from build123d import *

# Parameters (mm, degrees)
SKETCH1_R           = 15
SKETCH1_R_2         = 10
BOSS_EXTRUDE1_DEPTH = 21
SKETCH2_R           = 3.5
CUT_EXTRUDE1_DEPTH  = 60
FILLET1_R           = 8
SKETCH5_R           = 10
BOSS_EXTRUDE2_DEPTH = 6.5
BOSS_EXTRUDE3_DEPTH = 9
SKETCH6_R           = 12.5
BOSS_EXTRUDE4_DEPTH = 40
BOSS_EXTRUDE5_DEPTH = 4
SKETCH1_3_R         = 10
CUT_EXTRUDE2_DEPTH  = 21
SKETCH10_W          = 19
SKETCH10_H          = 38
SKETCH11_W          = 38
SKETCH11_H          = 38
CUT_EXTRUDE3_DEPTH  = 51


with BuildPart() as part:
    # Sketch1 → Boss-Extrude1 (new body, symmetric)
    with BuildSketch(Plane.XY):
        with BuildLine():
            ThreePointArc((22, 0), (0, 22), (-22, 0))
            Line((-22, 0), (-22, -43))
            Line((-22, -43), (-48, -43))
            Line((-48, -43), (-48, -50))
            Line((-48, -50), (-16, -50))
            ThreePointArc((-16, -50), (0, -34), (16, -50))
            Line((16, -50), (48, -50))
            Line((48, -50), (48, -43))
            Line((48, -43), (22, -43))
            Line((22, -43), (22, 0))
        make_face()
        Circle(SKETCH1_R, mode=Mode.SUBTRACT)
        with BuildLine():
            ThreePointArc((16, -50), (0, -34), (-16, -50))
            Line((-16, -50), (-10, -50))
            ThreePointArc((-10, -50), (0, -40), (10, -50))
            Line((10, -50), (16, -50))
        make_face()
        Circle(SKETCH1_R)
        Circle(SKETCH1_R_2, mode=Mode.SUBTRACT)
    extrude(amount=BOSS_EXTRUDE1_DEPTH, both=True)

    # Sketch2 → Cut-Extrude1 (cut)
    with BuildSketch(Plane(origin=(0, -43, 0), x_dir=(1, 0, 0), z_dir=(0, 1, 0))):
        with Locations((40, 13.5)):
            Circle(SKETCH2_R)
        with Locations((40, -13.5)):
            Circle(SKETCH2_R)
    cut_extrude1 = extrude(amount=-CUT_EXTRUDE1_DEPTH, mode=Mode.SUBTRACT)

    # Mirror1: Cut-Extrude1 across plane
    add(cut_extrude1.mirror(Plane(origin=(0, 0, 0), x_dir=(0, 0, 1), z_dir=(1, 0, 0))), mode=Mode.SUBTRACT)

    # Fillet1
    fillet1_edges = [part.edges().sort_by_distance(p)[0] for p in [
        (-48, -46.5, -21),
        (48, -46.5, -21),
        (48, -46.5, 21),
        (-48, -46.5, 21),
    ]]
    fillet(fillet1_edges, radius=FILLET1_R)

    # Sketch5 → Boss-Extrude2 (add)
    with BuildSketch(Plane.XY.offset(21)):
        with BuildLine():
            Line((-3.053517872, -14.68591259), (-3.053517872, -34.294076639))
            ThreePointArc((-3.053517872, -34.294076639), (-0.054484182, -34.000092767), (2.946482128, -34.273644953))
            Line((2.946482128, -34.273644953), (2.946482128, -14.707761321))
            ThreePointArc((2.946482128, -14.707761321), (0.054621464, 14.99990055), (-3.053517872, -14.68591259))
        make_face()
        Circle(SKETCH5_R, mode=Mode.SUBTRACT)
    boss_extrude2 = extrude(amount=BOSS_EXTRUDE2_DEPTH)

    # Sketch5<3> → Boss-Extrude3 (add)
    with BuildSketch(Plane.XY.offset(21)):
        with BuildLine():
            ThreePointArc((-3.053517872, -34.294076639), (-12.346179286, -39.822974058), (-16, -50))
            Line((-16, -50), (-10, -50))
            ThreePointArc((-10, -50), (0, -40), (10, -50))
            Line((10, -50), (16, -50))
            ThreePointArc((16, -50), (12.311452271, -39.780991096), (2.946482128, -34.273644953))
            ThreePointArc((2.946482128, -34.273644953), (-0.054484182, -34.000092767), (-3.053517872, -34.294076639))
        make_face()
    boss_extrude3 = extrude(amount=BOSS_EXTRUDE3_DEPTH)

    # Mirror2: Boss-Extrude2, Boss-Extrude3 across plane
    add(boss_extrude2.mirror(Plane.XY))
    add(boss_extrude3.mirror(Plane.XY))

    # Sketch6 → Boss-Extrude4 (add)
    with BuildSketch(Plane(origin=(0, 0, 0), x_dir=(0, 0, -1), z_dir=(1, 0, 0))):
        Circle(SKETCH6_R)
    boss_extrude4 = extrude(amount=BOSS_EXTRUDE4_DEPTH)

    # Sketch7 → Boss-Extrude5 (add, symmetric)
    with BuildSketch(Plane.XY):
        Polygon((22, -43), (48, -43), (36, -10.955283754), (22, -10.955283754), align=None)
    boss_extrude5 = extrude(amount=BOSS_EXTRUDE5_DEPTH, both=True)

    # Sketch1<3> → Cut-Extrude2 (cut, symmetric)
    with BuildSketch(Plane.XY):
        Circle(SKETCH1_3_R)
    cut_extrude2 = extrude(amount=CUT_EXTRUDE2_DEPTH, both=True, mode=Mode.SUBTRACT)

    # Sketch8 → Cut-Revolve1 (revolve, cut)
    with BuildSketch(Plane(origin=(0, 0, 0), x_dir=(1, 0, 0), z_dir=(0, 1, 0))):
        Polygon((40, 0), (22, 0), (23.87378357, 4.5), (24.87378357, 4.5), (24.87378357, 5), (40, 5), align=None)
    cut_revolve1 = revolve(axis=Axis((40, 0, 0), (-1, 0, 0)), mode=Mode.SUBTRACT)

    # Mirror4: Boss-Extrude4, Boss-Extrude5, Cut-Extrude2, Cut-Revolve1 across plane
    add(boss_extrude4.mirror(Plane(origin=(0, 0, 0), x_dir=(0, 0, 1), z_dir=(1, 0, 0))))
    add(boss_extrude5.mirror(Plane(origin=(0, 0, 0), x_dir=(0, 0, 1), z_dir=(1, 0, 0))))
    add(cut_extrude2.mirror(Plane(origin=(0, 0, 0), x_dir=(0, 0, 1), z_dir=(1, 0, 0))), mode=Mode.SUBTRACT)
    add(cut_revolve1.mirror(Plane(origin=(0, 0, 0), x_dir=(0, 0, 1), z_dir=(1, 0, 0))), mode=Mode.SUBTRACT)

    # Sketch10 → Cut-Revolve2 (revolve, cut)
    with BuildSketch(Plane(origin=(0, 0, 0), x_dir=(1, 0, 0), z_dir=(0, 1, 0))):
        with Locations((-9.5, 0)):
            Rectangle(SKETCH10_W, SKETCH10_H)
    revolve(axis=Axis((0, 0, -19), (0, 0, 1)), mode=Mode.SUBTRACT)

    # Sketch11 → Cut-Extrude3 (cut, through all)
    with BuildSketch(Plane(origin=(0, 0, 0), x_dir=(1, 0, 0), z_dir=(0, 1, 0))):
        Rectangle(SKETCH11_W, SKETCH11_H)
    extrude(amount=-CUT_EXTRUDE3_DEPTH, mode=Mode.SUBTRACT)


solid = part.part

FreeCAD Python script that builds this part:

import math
import FreeCAD as App
import Part
import Sketcher

V = App.Vector


def edges_at(feature, points):
    """Names of the edges that pass closest to the given points."""
    edges = feature.Shape.Edges
    near = lambda p: min(range(len(edges)), key=lambda i: edges[i].distToShape(Part.Vertex(*p))[0])
    return sorted({f"Edge{near(p) + 1}" for p in points})

doc = App.newDocument("Part")
body = doc.addObject("PartDesign::Body", "Body")

sketch1 = body.newObject("Sketcher::SketchObject", "Sketch")
sketch1.AttachmentSupport = (doc.getObject("XY_Plane"), [""])
sketch1.MapMode = "FlatFace"
sketch1.addGeometry([
    Part.ArcOfCircle(Part.Circle(V(0, 0, 0), V(0, 0, 1), 22), math.radians(0), math.radians(180)),
    Part.LineSegment(V(-22, 0, 0), V(-22, -43, 0)),
    Part.LineSegment(V(-22, -43, 0), V(-48, -43, 0)),
    Part.LineSegment(V(-48, -43, 0), V(-48, -50, 0)),
    Part.LineSegment(V(-48, -50, 0), V(-10, -50, 0)),
    Part.ArcOfCircle(Part.Circle(V(0, -50, 0), V(0, 0, 1), 10), math.radians(0), math.radians(180)),
    Part.LineSegment(V(10, -50, 0), V(48, -50, 0)),
    Part.LineSegment(V(48, -50, 0), V(48, -43, 0)),
    Part.LineSegment(V(48, -43, 0), V(22, -43, 0)),
    Part.LineSegment(V(22, -43, 0), V(22, 0, 0)),
    Part.Circle(V(0, 0, 0), V(0, 0, 1), 10),
], False)
sketch1.addConstraint([
    Sketcher.Constraint("Tangent", 0, 2, 1, 1),
    Sketcher.Constraint("Coincident", 1, 2, 2, 1),
    Sketcher.Constraint("Coincident", 2, 2, 3, 1),
    Sketcher.Constraint("Coincident", 3, 2, 4, 1),
    Sketcher.Constraint("Coincident", 4, 2, 5, 2),
    Sketcher.Constraint("Coincident", 5, 1, 6, 1),
    Sketcher.Constraint("Coincident", 6, 2, 7, 1),
    Sketcher.Constraint("Coincident", 7, 2, 8, 1),
    Sketcher.Constraint("Coincident", 8, 2, 9, 1),
    Sketcher.Constraint("Tangent", 9, 2, 0, 1),
    Sketcher.Constraint("Vertical", 1),
    Sketcher.Constraint("Horizontal", 2),
    Sketcher.Constraint("Vertical", 3),
    Sketcher.Constraint("Horizontal", 4),
    Sketcher.Constraint("Horizontal", 6),
    Sketcher.Constraint("Vertical", 7),
    Sketcher.Constraint("Horizontal", 8),
    Sketcher.Constraint("Vertical", 9),
    Sketcher.Constraint("Coincident", 0, 3, -1, 1),
    Sketcher.Constraint("Coincident", 10, 3, -1, 1),
    Sketcher.Constraint("Equal", 5, 10),
    Sketcher.Constraint("Symmetric", 4, 2, 5, 1, -2),
    Sketcher.Constraint("Symmetric", 2, 2, 7, 2, -2),
    Sketcher.Constraint("Horizontal", 5, 3, 3, 2),
    Sketcher.Constraint("Diameter", 10, 20.0),
    Sketcher.Constraint("Radius", 0, 22.0),
    Sketcher.Constraint("DistanceX", 2, 2, 2, 1, 26.0),
    Sketcher.Constraint("DistanceY", 1, 2, 1, 1, 43.0),
    Sketcher.Constraint("DistanceY", 3, 2, 3, 1, 7.0),
])
pad1 = body.newObject("PartDesign::Pad", "Pad")
pad1.Profile = sketch1
pad1.Length = 42
pad1.Midplane = True

sketch2 = body.newObject("Sketcher::SketchObject", "Sketch001")
sketch2.AttachmentSupport = (doc.getObject("XZ_Plane"), [""])
sketch2.MapMode = "FlatFace"
sketch2.AttachmentOffset = App.Placement(V(0, 0, 43), App.Rotation())
sketch2.addGeometry([
    Part.Circle(V(40, -13.5, 0), V(0, 0, 1), 3.5),
    Part.Circle(V(40, 13.5, 0), V(0, 0, 1), 3.5),
], False)
sketch2.addConstraint([
    Sketcher.Constraint("Equal", 0, 1),
    Sketcher.Constraint("Symmetric", 0, 3, 1, 3, -1),
    Sketcher.Constraint("Diameter", 0, 7.0),
    Sketcher.Constraint("DistanceX", -1, 1, 0, 3, 40.0),
    Sketcher.Constraint("DistanceY", 0, 3, 1, 3, 27.0),
])
pocket1 = body.newObject("PartDesign::Pocket", "Pocket")
pocket1.Profile = sketch2
pocket1.Length = 60
pocket1.Reversed = True
doc.recompute()

mirrored = body.newObject("PartDesign::Mirrored", "Mirrored")
mirrored.Originals = [pocket1]
mirrored.MirrorPlane = (doc.getObject("YZ_Plane"), [""])
body.Tip = mirrored
doc.recompute()

fillet = body.newObject("PartDesign::Fillet", "Fillet")
fillet.Base = (mirrored, edges_at(mirrored, [
    (-48, -46.5, -21),
    (48, -46.5, -21),
    (48, -46.5, 21),
    (-48, -46.5, 21),
]))
fillet.Radius = 8

sketch3 = body.newObject("Sketcher::SketchObject", "Sketch002")
sketch3.AttachmentSupport = (doc.getObject("XY_Plane"), [""])
sketch3.MapMode = "FlatFace"
sketch3.AttachmentOffset = App.Placement(V(0, 0, 21), App.Rotation())
sketch3.addGeometry([
    Part.LineSegment(V(-3.053518, -14.685913, 0), V(-3.053518, -34.294077, 0)),
    Part.ArcOfCircle(Part.Circle(V(0, -50, 0), V(0, 0, 1), 16), math.radians(79.388121), math.radians(101.002094)),
    Part.LineSegment(V(2.946482, -34.273645, 0), V(2.946482, -14.707761, 0)),
    Part.ArcOfCircle(Part.Circle(V(0, 0, 0), V(0, 0, 1), 15), math.radians(-78.671603), math.radians(258.254324)),
    Part.Circle(V(0, 0, 0), V(0, 0, 1), 10),
], False)
sketch3.addConstraint([
    Sketcher.Constraint("Coincident", 0, 2, 1, 2),
    Sketcher.Constraint("Coincident", 1, 1, 2, 1),
    Sketcher.Constraint("Coincident", 2, 2, 3, 1),
    Sketcher.Constraint("Coincident", 3, 2, 0, 1),
    Sketcher.Constraint("Vertical", 0),
    Sketcher.Constraint("Vertical", 2),
    Sketcher.Constraint("Coincident", 3, 3, -1, 1),
    Sketcher.Constraint("Coincident", 4, 3, -1, 1),
    Sketcher.Constraint("PointOnObject", 1, 3, -2),
    Sketcher.Constraint("Diameter", 4, 20.0),
    Sketcher.Constraint("Radius", 1, 16.0),
    Sketcher.Constraint("Radius", 3, 15.0),
    Sketcher.Constraint("DistanceY", 1, 3, -1, 1, 50.0),
    Sketcher.Constraint("DistanceX", 0, 2, 1, 1, 6.0),
    Sketcher.Constraint("DistanceY", 0, 2, 0, 1, 19.608164),
])
pad2 = body.newObject("PartDesign::Pad", "Pad001")
pad2.Profile = sketch3
pad2.Length = 6.5

sketch4 = body.newObject("Sketcher::SketchObject", "Sketch003")
sketch4.AttachmentSupport = (doc.getObject("XY_Plane"), [""])
sketch4.MapMode = "FlatFace"
sketch4.AttachmentOffset = App.Placement(V(0, 0, 21), App.Rotation())
sketch4.addGeometry([
    Part.ArcOfCircle(Part.Circle(V(0, -50, 0), V(0, 0, 1), 16), math.radians(101.002094), math.radians(180)),
    Part.LineSegment(V(-16, -50, 0), V(-10, -50, 0)),
    Part.ArcOfCircle(Part.Circle(V(0, -50, 0), V(0, 0, 1), 10), math.radians(0), math.radians(180)),
    Part.LineSegment(V(10, -50, 0), V(16, -50, 0)),
    Part.ArcOfCircle(Part.Circle(V(0, -50, 0), V(0, 0, 1), 16), math.radians(0), math.radians(79.388121)),
    Part.ArcOfCircle(Part.Circle(V(0, -50, 0), V(0, 0, 1), 16), math.radians(79.388121), math.radians(101.002094)),
], False)
sketch4.addConstraint([
    Sketcher.Constraint("Coincident", 0, 2, 1, 1),
    Sketcher.Constraint("Coincident", 1, 2, 2, 2),
    Sketcher.Constraint("Coincident", 2, 1, 3, 1),
    Sketcher.Constraint("Coincident", 3, 2, 4, 1),
    Sketcher.Constraint("Tangent", 4, 2, 5, 1),
    Sketcher.Constraint("Tangent", 5, 2, 0, 1),
    Sketcher.Constraint("Horizontal", 1),
    Sketcher.Constraint("Horizontal", 3),
    Sketcher.Constraint("Coincident", 2, 3, 0, 3),
    Sketcher.Constraint("Coincident", 4, 3, 0, 3),
    Sketcher.Constraint("Symmetric", 1, 2, 2, 1, -2),
    Sketcher.Constraint("Horizontal", 5, 3, 0, 2),
    Sketcher.Constraint("Radius", 0, 16.0),
    Sketcher.Constraint("Radius", 2, 10.0),
    Sketcher.Constraint("DistanceY", 0, 3, -1, 1, 50.0),
    Sketcher.Constraint("DistanceX", 5, 2, 4, 2, 6.0),
    Sketcher.Constraint("DistanceY", 5, 2, 4, 2, 0.020432),
])
pad3 = body.newObject("PartDesign::Pad", "Pad002")
pad3.Profile = sketch4
pad3.Length = 9
doc.recompute()

mirrored2 = body.newObject("PartDesign::Mirrored", "Mirrored001")
mirrored2.Originals = [pad2, pad3]
mirrored2.MirrorPlane = (doc.getObject("XY_Plane"), [""])
body.Tip = mirrored2

sketch5 = body.newObject("Sketcher::SketchObject", "Sketch004")
sketch5.AttachmentSupport = (doc.getObject("YZ_Plane"), [""])
sketch5.MapMode = "FlatFace"
sketch5.addGeometry(Part.Circle(V(0, 0, 0), V(0, 0, 1), 12.5), False)
sketch5.addConstraint([
    Sketcher.Constraint("Coincident", 0, 3, -1, 1),
    Sketcher.Constraint("Diameter", 0, 25.0),
])
pad4 = body.newObject("PartDesign::Pad", "Pad003")
pad4.Profile = sketch5
pad4.Length = 40

sketch6 = body.newObject("Sketcher::SketchObject", "Sketch005")
sketch6.AttachmentSupport = (doc.getObject("XY_Plane"), [""])
sketch6.MapMode = "FlatFace"
sketch6.addGeometry([
    Part.LineSegment(V(22, -43, 0), V(48, -43, 0)),
    Part.LineSegment(V(48, -43, 0), V(36, -10.955284, 0)),
    Part.LineSegment(V(36, -10.955284, 0), V(22, -10.955284, 0)),
    Part.LineSegment(V(22, -10.955284, 0), V(22, -43, 0)),
], False)
sketch6.addConstraint([
    Sketcher.Constraint("Coincident", 0, 2, 1, 1),
    Sketcher.Constraint("Coincident", 1, 2, 2, 1),
    Sketcher.Constraint("Coincident", 2, 2, 3, 1),
    Sketcher.Constraint("Coincident", 3, 2, 0, 1),
    Sketcher.Constraint("Horizontal", 0),
    Sketcher.Constraint("Horizontal", 2),
    Sketcher.Constraint("Vertical", 3),
    Sketcher.Constraint("DistanceX", 0, 1, 0, 2, 26.0),
    Sketcher.Constraint("DistanceX", 2, 2, 2, 1, 14.0),
    Sketcher.Constraint("DistanceX", -1, 1, 0, 2, 48.0),
    Sketcher.Constraint("DistanceY", 0, 2, -1, 1, 43.0),
    Sketcher.Constraint("DistanceY", 3, 2, 3, 1, 32.044716),
])
pad5 = body.newObject("PartDesign::Pad", "Pad004")
pad5.Profile = sketch6
pad5.Length = 8
pad5.Midplane = True

sketch7 = body.newObject("Sketcher::SketchObject", "Sketch006")
sketch7.AttachmentSupport = (doc.getObject("XY_Plane"), [""])
sketch7.MapMode = "FlatFace"
sketch7.addGeometry(Part.Circle(V(0, 0, 0), V(0, 0, 1), 10), False)
sketch7.addConstraint([
    Sketcher.Constraint("Coincident", 0, 3, -1, 1),
    Sketcher.Constraint("Diameter", 0, 20.0),
])
pocket2 = body.newObject("PartDesign::Pocket", "Pocket001")
pocket2.Profile = sketch7
pocket2.Length = 42
pocket2.Midplane = True

sketch8 = body.newObject("Sketcher::SketchObject", "Sketch007")
sketch8.AttachmentSupport = (doc.getObject("XZ_Plane"), [""])
sketch8.MapMode = "FlatFace"
sketch8.addGeometry([
    Part.LineSegment(V(22, 0, 0), V(40, 0, 0)),
    Part.LineSegment(V(40, 0, 0), V(40, -5, 0)),
    Part.LineSegment(V(40, -5, 0), V(24.873784, -5, 0)),
    Part.LineSegment(V(24.873784, -5, 0), V(24.873784, -4.5, 0)),
    Part.LineSegment(V(24.873784, -4.5, 0), V(23.873784, -4.5, 0)),
    Part.LineSegment(V(23.873784, -4.5, 0), V(22, 0, 0)),
], False)
sketch8.addConstraint([
    Sketcher.Constraint("Coincident", 0, 2, 1, 1),
    Sketcher.Constraint("Coincident", 1, 2, 2, 1),
    Sketcher.Constraint("Coincident", 2, 2, 3, 1),
    Sketcher.Constraint("Coincident", 3, 2, 4, 1),
    Sketcher.Constraint("Coincident", 4, 2, 5, 1),
    Sketcher.Constraint("Coincident", 5, 2, 0, 1),
    Sketcher.Constraint("Horizontal", 0),
    Sketcher.Constraint("Vertical", 1),
    Sketcher.Constraint("Horizontal", 2),
    Sketcher.Constraint("Vertical", 3),
    Sketcher.Constraint("Horizontal", 4),
    Sketcher.Constraint("PointOnObject", 0, 2, -1),
    Sketcher.Constraint("DistanceX", 0, 1, 0, 2, 18.0),
    Sketcher.Constraint("DistanceX", 4, 2, 4, 1, 1.0),
    Sketcher.Constraint("DistanceY", 1, 2, 1, 1, 5.0),
    Sketcher.Constraint("DistanceY", 3, 1, 3, 2, 0.5),
    Sketcher.Constraint("DistanceX", -1, 1, 0, 2, 40.0),
    Sketcher.Constraint("DistanceX", 2, 2, 2, 1, 15.126216),
])
groove = body.newObject("PartDesign::Groove", "Groove")
groove.Profile = sketch8
groove.ReferenceAxis = (sketch8, ["H_Axis"])
groove.Angle = 360
doc.recompute()

mirrored3 = body.newObject("PartDesign::Mirrored", "Mirrored002")
mirrored3.Originals = [pad4, pad5, pocket2, groove]
mirrored3.MirrorPlane = (doc.getObject("YZ_Plane"), [""])
body.Tip = mirrored3

sketch9 = body.newObject("Sketcher::SketchObject", "Sketch008")
sketch9.AttachmentSupport = (doc.getObject("XZ_Plane"), [""])
sketch9.MapMode = "FlatFace"
sketch9.addGeometry([
    Part.LineSegment(V(-19, -19, 0), V(-19, 19, 0)),
    Part.LineSegment(V(-19, 19, 0), V(0, 19, 0)),
    Part.LineSegment(V(0, 19, 0), V(0, -19, 0)),
    Part.LineSegment(V(0, -19, 0), V(-19, -19, 0)),
], False)
sketch9.addConstraint([
    Sketcher.Constraint("Coincident", 0, 2, 1, 1),
    Sketcher.Constraint("Coincident", 1, 2, 2, 1),
    Sketcher.Constraint("Coincident", 2, 2, 3, 1),
    Sketcher.Constraint("Coincident", 3, 2, 0, 1),
    Sketcher.Constraint("Vertical", 0),
    Sketcher.Constraint("Horizontal", 1),
    Sketcher.Constraint("Vertical", 2),
    Sketcher.Constraint("Horizontal", 3),
    Sketcher.Constraint("Symmetric", 1, 2, 2, 2, -1, 1),
    Sketcher.Constraint("DistanceX", 1, 1, 1, 2, 19.0),
    Sketcher.Constraint("DistanceY", 0, 1, 0, 2, 38.0),
])
groove2 = body.newObject("PartDesign::Groove", "Groove001")
groove2.Profile = sketch9
groove2.ReferenceAxis = (sketch9, ["V_Axis"])
groove2.Angle = 360

sketch10 = body.newObject("Sketcher::SketchObject", "Sketch009")
sketch10.AttachmentSupport = (doc.getObject("XZ_Plane"), [""])
sketch10.MapMode = "FlatFace"
sketch10.addGeometry([
    Part.LineSegment(V(-19, -19, 0), V(-19, 19, 0)),
    Part.LineSegment(V(-19, 19, 0), V(19, 19, 0)),
    Part.LineSegment(V(19, 19, 0), V(19, -19, 0)),
    Part.LineSegment(V(19, -19, 0), V(-19, -19, 0)),
], False)
sketch10.addConstraint([
    Sketcher.Constraint("Coincident", 0, 2, 1, 1),
    Sketcher.Constraint("Coincident", 1, 2, 2, 1),
    Sketcher.Constraint("Coincident", 2, 2, 3, 1),
    Sketcher.Constraint("Coincident", 3, 2, 0, 1),
    Sketcher.Constraint("Vertical", 0),
    Sketcher.Constraint("Horizontal", 1),
    Sketcher.Constraint("Vertical", 2),
    Sketcher.Constraint("Horizontal", 3),
    Sketcher.Constraint("Symmetric", 0, 2, 2, 2, -1, 1),
    Sketcher.Constraint("Equal", 3, 0),
    Sketcher.Constraint("DistanceX", 1, 1, 1, 2, 38.0),
])
pocket3 = body.newObject("PartDesign::Pocket", "Pocket002")
pocket3.Profile = sketch10
pocket3.Type = "ThroughAll"
pocket3.Reversed = True

doc.recompute()
